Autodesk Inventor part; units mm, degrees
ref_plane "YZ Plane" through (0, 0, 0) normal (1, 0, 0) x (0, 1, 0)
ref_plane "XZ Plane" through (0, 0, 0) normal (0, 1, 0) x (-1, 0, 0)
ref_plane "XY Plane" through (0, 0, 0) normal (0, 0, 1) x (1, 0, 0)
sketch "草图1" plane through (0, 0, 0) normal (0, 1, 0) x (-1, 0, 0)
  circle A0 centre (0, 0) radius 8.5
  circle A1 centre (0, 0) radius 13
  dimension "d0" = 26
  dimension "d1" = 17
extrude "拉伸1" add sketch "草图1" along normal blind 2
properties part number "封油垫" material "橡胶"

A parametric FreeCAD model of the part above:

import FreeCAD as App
import Part
import Sketcher

doc = App.newDocument("Part")
body = doc.addObject("PartDesign::Body", "Body")

# Sketch on XZ plane
sketch1 = body.newObject("Sketcher::SketchObject", "Sketch")
sketch1.AttachmentSupport = (doc.getObject("XZ_Plane"), [""])
sketch1.MapMode = "FlatFace"
sketch1.addGeometry([
    Part.Circle(App.Vector(0, 0, 0), App.Vector(0, 0, 1), 13),
    Part.Circle(App.Vector(0, 0, 0), App.Vector(0, 0, 1), 8),
], False)
sketch1.addConstraint([
    Sketcher.Constraint("Coincident", 0, 3, -1, 1),
    Sketcher.Constraint("Coincident", 1, 3, -1, 1),
    Sketcher.Constraint("Diameter", 0, 26.0),
    Sketcher.Constraint("Diameter", 1, 17.0),
])
pad1 = body.newObject("PartDesign::Pad", "Pad")
pad1.Profile = sketch1
pad1.Length = 2
pad1.Reversed = True

doc.recompute()
